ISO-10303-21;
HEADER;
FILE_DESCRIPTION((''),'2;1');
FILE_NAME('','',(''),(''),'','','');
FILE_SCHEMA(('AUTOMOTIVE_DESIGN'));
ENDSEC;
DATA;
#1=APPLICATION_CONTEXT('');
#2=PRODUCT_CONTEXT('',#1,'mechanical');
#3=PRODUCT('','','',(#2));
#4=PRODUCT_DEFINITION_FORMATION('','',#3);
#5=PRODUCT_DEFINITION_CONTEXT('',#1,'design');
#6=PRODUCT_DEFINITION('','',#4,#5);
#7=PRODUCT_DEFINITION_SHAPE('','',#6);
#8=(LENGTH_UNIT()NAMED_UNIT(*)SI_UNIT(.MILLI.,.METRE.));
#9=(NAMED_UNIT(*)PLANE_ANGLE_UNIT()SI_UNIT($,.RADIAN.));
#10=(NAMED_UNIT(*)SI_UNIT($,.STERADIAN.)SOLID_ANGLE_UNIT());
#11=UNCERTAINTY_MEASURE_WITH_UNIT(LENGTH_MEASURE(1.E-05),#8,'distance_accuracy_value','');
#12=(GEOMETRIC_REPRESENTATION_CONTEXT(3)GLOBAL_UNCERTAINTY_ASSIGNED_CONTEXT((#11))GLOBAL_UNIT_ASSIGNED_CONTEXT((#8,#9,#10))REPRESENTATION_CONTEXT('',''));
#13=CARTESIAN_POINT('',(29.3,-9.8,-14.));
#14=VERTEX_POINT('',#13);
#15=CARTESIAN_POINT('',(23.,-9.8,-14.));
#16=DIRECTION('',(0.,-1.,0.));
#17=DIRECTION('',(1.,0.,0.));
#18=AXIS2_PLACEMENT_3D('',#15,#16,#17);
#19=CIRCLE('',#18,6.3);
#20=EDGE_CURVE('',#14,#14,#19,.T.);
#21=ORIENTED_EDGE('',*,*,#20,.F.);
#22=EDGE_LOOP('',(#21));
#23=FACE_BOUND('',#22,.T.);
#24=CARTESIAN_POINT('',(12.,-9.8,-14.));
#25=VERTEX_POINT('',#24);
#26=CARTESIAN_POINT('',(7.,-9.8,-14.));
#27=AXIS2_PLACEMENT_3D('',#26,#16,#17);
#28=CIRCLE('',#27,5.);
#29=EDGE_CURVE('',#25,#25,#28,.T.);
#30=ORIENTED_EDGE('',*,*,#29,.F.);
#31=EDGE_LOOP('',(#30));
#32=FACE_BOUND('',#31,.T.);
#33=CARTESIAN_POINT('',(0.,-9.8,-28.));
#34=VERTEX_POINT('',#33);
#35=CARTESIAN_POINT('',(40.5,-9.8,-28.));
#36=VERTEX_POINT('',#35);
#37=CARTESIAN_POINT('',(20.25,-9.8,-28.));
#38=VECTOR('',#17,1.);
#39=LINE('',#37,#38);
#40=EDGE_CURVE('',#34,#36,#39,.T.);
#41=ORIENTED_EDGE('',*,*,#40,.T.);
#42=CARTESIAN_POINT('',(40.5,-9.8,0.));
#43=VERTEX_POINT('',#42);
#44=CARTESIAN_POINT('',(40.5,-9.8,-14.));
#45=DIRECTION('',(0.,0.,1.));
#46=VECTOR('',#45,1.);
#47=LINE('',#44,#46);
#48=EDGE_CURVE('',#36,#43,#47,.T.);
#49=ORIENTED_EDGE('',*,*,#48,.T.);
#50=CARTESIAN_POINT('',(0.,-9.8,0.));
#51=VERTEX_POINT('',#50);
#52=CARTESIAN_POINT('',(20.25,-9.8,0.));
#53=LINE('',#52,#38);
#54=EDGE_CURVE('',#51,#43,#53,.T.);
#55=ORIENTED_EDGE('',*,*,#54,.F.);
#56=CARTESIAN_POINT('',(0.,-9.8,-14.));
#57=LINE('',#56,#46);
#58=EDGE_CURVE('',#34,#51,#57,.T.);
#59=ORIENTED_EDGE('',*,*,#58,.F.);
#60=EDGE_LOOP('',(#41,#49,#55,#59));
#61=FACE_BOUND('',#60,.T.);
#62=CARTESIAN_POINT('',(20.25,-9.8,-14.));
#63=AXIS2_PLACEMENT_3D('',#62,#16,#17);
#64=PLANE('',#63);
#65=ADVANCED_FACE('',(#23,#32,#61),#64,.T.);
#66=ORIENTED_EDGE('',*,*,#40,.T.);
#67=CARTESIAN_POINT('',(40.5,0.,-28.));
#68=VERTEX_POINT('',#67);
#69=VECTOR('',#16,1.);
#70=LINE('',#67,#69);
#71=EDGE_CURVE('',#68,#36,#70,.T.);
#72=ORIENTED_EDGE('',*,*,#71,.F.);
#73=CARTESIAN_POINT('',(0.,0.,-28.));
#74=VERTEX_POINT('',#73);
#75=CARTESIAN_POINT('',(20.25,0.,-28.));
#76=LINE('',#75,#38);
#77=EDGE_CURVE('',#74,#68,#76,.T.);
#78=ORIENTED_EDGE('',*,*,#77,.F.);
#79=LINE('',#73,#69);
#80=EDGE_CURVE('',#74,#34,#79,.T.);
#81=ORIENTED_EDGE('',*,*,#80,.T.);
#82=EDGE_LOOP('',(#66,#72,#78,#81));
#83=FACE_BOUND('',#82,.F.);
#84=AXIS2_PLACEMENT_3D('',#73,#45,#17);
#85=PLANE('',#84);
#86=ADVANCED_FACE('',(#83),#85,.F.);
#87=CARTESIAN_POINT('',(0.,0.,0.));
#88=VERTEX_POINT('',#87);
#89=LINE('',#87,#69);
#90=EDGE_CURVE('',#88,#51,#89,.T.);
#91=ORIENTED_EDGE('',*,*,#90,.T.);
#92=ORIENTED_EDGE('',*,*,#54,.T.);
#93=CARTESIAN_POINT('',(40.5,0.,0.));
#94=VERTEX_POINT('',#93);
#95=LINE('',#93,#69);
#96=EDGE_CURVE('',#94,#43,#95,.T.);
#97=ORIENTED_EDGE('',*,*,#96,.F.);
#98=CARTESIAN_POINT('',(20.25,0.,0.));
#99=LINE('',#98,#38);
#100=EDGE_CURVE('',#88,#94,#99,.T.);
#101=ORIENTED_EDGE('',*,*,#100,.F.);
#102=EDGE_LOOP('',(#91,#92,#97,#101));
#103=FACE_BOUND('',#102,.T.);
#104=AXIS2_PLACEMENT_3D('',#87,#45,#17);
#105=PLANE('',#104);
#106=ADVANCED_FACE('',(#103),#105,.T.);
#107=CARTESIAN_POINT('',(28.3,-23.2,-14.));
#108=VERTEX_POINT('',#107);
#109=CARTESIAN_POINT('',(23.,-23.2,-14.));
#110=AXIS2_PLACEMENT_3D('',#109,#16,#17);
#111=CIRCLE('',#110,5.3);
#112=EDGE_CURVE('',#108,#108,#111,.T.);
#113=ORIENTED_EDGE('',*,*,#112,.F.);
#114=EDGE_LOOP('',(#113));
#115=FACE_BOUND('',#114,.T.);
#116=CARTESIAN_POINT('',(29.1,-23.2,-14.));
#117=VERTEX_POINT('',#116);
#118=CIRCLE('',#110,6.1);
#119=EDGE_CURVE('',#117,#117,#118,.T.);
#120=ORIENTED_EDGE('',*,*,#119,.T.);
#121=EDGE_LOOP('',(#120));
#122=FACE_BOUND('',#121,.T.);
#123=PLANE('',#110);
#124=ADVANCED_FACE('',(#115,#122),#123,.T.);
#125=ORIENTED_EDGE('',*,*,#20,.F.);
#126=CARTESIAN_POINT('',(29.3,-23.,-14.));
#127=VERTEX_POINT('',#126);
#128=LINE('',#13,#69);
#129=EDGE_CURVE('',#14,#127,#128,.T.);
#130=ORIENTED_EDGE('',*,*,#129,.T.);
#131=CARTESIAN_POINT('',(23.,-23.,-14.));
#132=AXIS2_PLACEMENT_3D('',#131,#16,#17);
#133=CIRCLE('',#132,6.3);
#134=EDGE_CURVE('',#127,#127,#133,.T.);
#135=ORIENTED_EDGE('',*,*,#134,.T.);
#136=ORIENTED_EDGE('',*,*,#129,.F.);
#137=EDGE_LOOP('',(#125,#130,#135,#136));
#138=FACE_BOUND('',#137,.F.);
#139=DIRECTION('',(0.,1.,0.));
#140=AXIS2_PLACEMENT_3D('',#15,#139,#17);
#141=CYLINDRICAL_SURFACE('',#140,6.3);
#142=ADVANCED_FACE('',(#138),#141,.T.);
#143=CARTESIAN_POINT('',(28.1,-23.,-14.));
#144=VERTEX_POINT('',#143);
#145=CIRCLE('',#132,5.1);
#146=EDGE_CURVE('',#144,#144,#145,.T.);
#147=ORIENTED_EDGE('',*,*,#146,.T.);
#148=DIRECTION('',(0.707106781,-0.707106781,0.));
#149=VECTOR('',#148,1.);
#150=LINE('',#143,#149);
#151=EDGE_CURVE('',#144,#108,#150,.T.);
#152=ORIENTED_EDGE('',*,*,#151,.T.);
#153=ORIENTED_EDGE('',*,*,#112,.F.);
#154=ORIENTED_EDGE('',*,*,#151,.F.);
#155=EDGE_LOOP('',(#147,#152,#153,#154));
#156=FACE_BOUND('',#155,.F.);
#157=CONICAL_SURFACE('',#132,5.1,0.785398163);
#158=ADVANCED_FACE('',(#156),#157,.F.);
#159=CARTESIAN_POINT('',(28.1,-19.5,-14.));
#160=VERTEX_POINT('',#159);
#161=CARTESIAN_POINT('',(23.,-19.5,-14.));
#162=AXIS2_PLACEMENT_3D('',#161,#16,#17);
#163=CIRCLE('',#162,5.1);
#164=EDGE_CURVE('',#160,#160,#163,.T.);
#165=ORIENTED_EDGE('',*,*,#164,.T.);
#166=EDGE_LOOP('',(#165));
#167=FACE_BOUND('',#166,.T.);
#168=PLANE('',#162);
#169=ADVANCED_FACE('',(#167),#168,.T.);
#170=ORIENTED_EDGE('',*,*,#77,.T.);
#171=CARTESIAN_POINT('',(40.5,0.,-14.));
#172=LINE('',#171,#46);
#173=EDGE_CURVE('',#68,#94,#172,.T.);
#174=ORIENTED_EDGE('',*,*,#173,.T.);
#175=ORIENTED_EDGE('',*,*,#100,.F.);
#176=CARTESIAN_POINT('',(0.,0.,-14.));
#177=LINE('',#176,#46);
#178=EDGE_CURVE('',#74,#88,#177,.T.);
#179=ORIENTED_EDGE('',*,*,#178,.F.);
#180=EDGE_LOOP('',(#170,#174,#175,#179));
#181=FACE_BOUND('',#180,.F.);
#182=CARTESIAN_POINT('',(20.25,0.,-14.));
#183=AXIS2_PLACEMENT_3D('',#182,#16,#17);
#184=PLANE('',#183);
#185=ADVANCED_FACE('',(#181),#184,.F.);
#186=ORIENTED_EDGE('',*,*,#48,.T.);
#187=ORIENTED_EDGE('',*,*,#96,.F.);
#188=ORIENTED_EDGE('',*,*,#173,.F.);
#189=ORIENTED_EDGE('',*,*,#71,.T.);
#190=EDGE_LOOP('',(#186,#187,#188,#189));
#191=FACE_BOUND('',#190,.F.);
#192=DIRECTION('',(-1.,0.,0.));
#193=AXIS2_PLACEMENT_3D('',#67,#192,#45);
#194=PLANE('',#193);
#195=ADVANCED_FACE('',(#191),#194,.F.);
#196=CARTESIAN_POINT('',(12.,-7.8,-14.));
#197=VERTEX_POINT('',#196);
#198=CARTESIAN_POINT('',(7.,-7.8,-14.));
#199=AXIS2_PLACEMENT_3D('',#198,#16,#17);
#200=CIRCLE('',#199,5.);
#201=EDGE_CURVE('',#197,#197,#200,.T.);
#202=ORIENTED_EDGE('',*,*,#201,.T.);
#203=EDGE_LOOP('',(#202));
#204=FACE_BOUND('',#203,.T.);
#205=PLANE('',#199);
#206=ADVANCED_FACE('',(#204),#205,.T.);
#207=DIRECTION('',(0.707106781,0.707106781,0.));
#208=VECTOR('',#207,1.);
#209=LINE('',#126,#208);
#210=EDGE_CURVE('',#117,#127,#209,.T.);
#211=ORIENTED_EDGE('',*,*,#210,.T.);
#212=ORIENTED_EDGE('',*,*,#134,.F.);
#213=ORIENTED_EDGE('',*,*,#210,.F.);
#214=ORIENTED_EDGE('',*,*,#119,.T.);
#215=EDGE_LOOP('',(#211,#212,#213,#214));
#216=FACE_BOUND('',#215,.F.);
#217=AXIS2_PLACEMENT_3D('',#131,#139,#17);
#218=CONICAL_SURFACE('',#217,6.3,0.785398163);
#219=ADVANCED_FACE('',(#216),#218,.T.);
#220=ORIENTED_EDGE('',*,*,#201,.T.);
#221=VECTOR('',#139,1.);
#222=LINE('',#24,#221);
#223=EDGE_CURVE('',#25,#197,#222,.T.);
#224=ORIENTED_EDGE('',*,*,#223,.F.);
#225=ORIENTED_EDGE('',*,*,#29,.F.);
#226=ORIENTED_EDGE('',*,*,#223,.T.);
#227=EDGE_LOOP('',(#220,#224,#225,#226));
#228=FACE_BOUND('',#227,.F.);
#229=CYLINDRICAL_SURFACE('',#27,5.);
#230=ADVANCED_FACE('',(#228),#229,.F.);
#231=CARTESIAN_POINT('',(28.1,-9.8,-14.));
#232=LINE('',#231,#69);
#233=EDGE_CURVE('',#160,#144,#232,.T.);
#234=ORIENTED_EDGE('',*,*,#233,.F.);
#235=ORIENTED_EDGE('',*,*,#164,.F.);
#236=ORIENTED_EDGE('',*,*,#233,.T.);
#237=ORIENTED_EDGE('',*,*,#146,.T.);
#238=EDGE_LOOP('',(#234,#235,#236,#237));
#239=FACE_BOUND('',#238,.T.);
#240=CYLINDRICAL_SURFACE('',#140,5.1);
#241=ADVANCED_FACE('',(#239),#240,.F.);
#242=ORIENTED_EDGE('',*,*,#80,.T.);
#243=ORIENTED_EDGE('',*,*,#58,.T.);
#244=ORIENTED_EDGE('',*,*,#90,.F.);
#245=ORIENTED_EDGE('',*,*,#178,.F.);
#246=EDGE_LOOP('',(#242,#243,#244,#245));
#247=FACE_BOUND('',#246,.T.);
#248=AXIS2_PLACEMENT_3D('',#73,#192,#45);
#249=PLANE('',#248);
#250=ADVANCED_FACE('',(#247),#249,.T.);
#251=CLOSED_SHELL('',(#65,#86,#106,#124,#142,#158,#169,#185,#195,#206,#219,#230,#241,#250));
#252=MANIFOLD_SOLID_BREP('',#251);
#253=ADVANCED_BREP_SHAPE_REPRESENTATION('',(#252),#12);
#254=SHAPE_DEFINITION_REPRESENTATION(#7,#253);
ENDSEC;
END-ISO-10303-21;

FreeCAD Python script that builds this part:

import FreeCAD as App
import Part
import Sketcher

V = App.Vector
Q = App.Units.Quantity


def edges_at(feature, points):
    """Names of the edges that pass closest to the given points."""
    edges = feature.Shape.Edges
    near = lambda p: min(range(len(edges)), key=lambda i: edges[i].distToShape(Part.Vertex(*p))[0])
    return sorted({f"Edge{near(p) + 1}" for p in points})


def add_polygon(sketch, points):
    """Adds a closed chain of lines whose ends are joined by coincident constraints."""
    first, n = sketch.GeometryCount, len(points)
    for a, b in zip(points, points[1:] + points[:1]):
        sketch.addGeometry(Part.LineSegment(App.Vector(*a, 0), App.Vector(*b, 0)), False)
    for i in range(n):
        sketch.addConstraint(Sketcher.Constraint("Coincident", first + i, 2, first + (i + 1) % n, 1))

doc = App.newDocument("Part")
body = doc.addObject("PartDesign::Body", "Body")

# Sketch on XZ plane
sketch1 = body.newObject("Sketcher::SketchObject", "Sketch")
sketch1.AttachmentSupport = (doc.getObject("XZ_Plane"), [""])
sketch1.MapMode = "FlatFace"
add_polygon(sketch1, [(0, 0), (0, -28), (40.5, -28), (40.5, 0)])  # lines 0-3
sketch1.addConstraint([
    Sketcher.Constraint("Vertical", 0),
    Sketcher.Constraint("Horizontal", 1),
    Sketcher.Constraint("Vertical", 2),
    Sketcher.Constraint("Horizontal", 3),
    Sketcher.Constraint("Coincident", 3, 2, -1, 1),
    Sketcher.Constraint("DistanceY", 0, 2, 0, 1, Q("28 mm")),
    Sketcher.Constraint("DistanceX", 1, 1, 1, 2, Q("40.5 mm")),
])
pad1 = body.newObject("PartDesign::Pad", "Pad")
pad1.Profile = sketch1
pad1.Length = 9.8

# Sketch on XZ plane
sketch2 = body.newObject("Sketcher::SketchObject", "Sketch001")
sketch2.AttachmentSupport = (doc.getObject("XZ_Plane"), [""])
sketch2.MapMode = "FlatFace"
sketch2.AttachmentOffset = App.Placement(V(0, 0, 9.8), App.Rotation())
sketch2.addGeometry([
    Part.Circle(V(23, -14, 0), V(0, 0, 1), 6.3),
    Part.Circle(V(23, -14, 0), V(0, 0, 1), 5.1),
], False)
sketch2.addConstraint([
    Sketcher.Constraint("Coincident", 1, 3, 0, 3),
    Sketcher.Constraint("Diameter", 0, Q("12.6 mm")),
    Sketcher.Constraint("Diameter", 1, Q("10.2 mm")),
    Sketcher.Constraint("DistanceX", -1, 1, 0, 3, Q("23 mm")),
    Sketcher.Constraint("DistanceY", 0, 3, -1, 1, Q("14 mm")),
])
pad2 = body.newObject("PartDesign::Pad", "Pad001")
pad2.Profile = sketch2
pad2.Length = 13.4

# Sketch on XZ plane
sketch3 = body.newObject("Sketcher::SketchObject", "Sketch002")
sketch3.AttachmentSupport = (doc.getObject("XZ_Plane"), [""])
sketch3.MapMode = "FlatFace"
sketch3.AttachmentOffset = App.Placement(V(0, 0, 9.8), App.Rotation())
sketch3.addGeometry(Part.Circle(V(23, -14, 0), V(0, 0, 1), 5.1), False)
sketch3.addConstraint([
    Sketcher.Constraint("Diameter", 0, Q("10.2 mm")),
    Sketcher.Constraint("DistanceX", -1, 1, 0, 3, Q("23 mm")),
    Sketcher.Constraint("DistanceY", 0, 3, -1, 1, Q("14 mm")),
])
pad3 = body.newObject("PartDesign::Pad", "Pad002")
pad3.Profile = sketch3
pad3.Length = 9.7

# Sketch on XZ plane
sketch4 = body.newObject("Sketcher::SketchObject", "Sketch003")
sketch4.AttachmentSupport = (doc.getObject("XZ_Plane"), [""])
sketch4.MapMode = "FlatFace"
sketch4.AttachmentOffset = App.Placement(V(0, 0, 9.8), App.Rotation())
sketch4.addGeometry(Part.Circle(V(7, -14, 0), V(0, 0, 1), 5), False)
sketch4.addConstraint([
    Sketcher.Constraint("Diameter", 0, Q("10 mm")),
    Sketcher.Constraint("DistanceX", -1, 1, 0, 3, Q("7 mm")),
    Sketcher.Constraint("DistanceY", 0, 3, -1, 1, Q("14 mm")),
])
pocket1 = body.newObject("PartDesign::Pocket", "Pocket")
pocket1.Profile = sketch4
pocket1.Length = 2
doc.recompute()

chamfer = body.newObject("PartDesign::Chamfer", "Chamfer")
chamfer.Base = (pocket1, edges_at(pocket1, [(17.9, -23.2, -14), (16.7, -23.2, -14)]))
chamfer.Size = 0.2

doc.recompute()
